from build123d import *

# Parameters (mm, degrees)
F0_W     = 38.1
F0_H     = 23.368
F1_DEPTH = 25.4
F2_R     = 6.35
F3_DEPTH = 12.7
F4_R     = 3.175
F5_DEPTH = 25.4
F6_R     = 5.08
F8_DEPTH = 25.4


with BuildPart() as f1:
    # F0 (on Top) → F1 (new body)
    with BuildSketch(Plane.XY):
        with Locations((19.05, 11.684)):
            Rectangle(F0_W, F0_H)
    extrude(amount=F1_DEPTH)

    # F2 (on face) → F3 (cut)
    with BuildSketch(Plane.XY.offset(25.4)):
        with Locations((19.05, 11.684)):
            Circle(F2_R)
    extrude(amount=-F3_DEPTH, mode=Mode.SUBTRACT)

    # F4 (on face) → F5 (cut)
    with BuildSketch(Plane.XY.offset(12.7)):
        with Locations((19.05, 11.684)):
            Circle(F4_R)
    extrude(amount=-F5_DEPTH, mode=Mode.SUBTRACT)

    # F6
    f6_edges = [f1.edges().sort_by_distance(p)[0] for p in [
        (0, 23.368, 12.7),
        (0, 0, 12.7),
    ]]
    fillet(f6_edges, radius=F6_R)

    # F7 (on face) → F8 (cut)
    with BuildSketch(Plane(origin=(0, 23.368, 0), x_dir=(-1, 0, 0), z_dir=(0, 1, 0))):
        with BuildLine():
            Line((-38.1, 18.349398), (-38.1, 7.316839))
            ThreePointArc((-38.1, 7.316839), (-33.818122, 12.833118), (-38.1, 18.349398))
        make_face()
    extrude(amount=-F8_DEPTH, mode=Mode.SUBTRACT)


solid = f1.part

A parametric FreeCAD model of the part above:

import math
import FreeCAD as App
import Part
import Sketcher

V = App.Vector
Q = App.Units.Quantity


def edges_at(feature, points):
    """Names of the edges that pass closest to the given points."""
    edges = feature.Shape.Edges
    near = lambda p: min(range(len(edges)), key=lambda i: edges[i].distToShape(Part.Vertex(*p))[0])
    return sorted({f"Edge{near(p) + 1}" for p in points})

doc = App.newDocument("Part")
body = doc.addObject("PartDesign::Body", "Body")

sketch1 = body.newObject("Sketcher::SketchObject", "Sketch")
sketch1.AttachmentSupport = (doc.getObject("XY_Plane"), [""])
sketch1.MapMode = "FlatFace"
sketch1.addGeometry(Part.LineSegment(V(0, 23, 0), V(0, 0, 0)), False)
sketch1.addGeometry(Part.LineSegment(V(0, 0, 0), V(38, 0, 0)), False)
sketch1.addGeometry(Part.LineSegment(V(38, 0, 0), V(38, 23, 0)), False)
sketch1.addGeometry(Part.LineSegment(V(38, 23, 0), V(0, 23, 0)), False)
sketch1.addConstraint(Sketcher.Constraint("Coincident", 0, 2, 1, 1))
sketch1.addConstraint(Sketcher.Constraint("Coincident", 1, 2, 2, 1))
sketch1.addConstraint(Sketcher.Constraint("Coincident", 2, 2, 3, 1))
sketch1.addConstraint(Sketcher.Constraint("Coincident", 3, 2, 0, 1))
sketch1.addConstraint(Sketcher.Constraint("Vertical", 0))
sketch1.addConstraint(Sketcher.Constraint("Horizontal", 1))
sketch1.addConstraint(Sketcher.Constraint("Vertical", 2))
sketch1.addConstraint(Sketcher.Constraint("Horizontal", 3))
sketch1.addConstraint(Sketcher.Constraint("Coincident", 0, 2, -1, 1))
sketch1.addConstraint(Sketcher.Constraint("DistanceX", 1, 1, 1, 2, Q("1.5 in")))
sketch1.addConstraint(Sketcher.Constraint("DistanceY", 0, 2, 0, 1, Q("0.92 in")))
pad1 = body.newObject("PartDesign::Pad", "Pad")
pad1.Profile = sketch1
pad1.Length = Q("1 in")

sketch2 = body.newObject("Sketcher::SketchObject", "Sketch001")
sketch2.AttachmentSupport = (doc.getObject("XY_Plane"), [""])
sketch2.MapMode = "FlatFace"
sketch2.AttachmentOffset = App.Placement(V(0, 0, 1 * 25.4), App.Rotation())
sketch2.addGeometry(Part.Circle(V(19, 12, 0), V(0, 0, 1), 6), False)
sketch2.addConstraint(Sketcher.Constraint("Diameter", 0, Q("0.5 in")))
sketch2.addConstraint(Sketcher.Constraint("DistanceX", -1, 1, 0, 3, Q("0.75 in")))
sketch2.addConstraint(Sketcher.Constraint("DistanceY", -1, 1, 0, 3, Q("0.46 in")))
pocket1 = body.newObject("PartDesign::Pocket", "Pocket")
pocket1.Profile = sketch2
pocket1.Length = Q("0.5 in")

sketch3 = body.newObject("Sketcher::SketchObject", "Sketch002")
sketch3.AttachmentSupport = (doc.getObject("XY_Plane"), [""])
sketch3.MapMode = "FlatFace"
sketch3.AttachmentOffset = App.Placement(V(0, 0, 0.5 * 25.4), App.Rotation())
sketch3.addGeometry(Part.Circle(V(19.1, 11.7, 0), V(0, 0, 1), 3.2), False)
sketch3.addConstraint(Sketcher.Constraint("Diameter", 0, Q("0.25 in")))
sketch3.addConstraint(Sketcher.Constraint("DistanceX", -1, 1, 0, 3, Q("0.75 in")))
sketch3.addConstraint(Sketcher.Constraint("DistanceY", -1, 1, 0, 3, Q("0.46 in")))
pocket2 = body.newObject("PartDesign::Pocket", "Pocket001")
pocket2.Profile = sketch3
pocket2.Length = Q("1 in")
doc.recompute()

fillet = body.newObject("PartDesign::Fillet", "Fillet")
fillet.Base = (pocket2, edges_at(pocket2, [(0, 23.368, 12.7), (0, 0, 12.7)]))
fillet.Radius = Q("0.2 in")

sketch4 = body.newObject("Sketcher::SketchObject", "Sketch003")
sketch4.AttachmentSupport = (doc.getObject("XZ_Plane"), [""])
sketch4.MapMode = "FlatFace"
sketch4.AttachmentOffset = App.Placement(V(0, 0, -0.92 * 25.4), App.Rotation())
sketch4.addGeometry(Part.LineSegment(V(38, 18, 0), V(38, 7, 0)), False)
sketch4.addGeometry(Part.ArcOfCircle(Part.Circle(V(40, 13, 0), V(0, 0, 1), 6), math.radians(104), math.radians(256)), False)
sketch4.addConstraint(Sketcher.Constraint("Coincident", 0, 1, 1, 1))
sketch4.addConstraint(Sketcher.Constraint("Coincident", 1, 2, 0, 2))
sketch4.addConstraint(Sketcher.Constraint("Vertical", 0))
sketch4.addConstraint(Sketcher.Constraint("DistanceX", -1, 1, 0, 1, Q("1.5 in")))
sketch4.addConstraint(Sketcher.Constraint("Radius", 1, Q("5.694209 mm")))
sketch4.addConstraint(Sketcher.Constraint("DistanceY", 0, 2, 0, 1, Q("11.032559 mm")))
sketch4.addConstraint(Sketcher.Constraint("DistanceY", -1, 1, 0, 1, Q("18.349398 mm")))
pocket3 = body.newObject("PartDesign::Pocket", "Pocket002")
pocket3.Profile = sketch4
pocket3.Length = Q("1 in")
pocket3.Reversed = True

doc.recompute()
